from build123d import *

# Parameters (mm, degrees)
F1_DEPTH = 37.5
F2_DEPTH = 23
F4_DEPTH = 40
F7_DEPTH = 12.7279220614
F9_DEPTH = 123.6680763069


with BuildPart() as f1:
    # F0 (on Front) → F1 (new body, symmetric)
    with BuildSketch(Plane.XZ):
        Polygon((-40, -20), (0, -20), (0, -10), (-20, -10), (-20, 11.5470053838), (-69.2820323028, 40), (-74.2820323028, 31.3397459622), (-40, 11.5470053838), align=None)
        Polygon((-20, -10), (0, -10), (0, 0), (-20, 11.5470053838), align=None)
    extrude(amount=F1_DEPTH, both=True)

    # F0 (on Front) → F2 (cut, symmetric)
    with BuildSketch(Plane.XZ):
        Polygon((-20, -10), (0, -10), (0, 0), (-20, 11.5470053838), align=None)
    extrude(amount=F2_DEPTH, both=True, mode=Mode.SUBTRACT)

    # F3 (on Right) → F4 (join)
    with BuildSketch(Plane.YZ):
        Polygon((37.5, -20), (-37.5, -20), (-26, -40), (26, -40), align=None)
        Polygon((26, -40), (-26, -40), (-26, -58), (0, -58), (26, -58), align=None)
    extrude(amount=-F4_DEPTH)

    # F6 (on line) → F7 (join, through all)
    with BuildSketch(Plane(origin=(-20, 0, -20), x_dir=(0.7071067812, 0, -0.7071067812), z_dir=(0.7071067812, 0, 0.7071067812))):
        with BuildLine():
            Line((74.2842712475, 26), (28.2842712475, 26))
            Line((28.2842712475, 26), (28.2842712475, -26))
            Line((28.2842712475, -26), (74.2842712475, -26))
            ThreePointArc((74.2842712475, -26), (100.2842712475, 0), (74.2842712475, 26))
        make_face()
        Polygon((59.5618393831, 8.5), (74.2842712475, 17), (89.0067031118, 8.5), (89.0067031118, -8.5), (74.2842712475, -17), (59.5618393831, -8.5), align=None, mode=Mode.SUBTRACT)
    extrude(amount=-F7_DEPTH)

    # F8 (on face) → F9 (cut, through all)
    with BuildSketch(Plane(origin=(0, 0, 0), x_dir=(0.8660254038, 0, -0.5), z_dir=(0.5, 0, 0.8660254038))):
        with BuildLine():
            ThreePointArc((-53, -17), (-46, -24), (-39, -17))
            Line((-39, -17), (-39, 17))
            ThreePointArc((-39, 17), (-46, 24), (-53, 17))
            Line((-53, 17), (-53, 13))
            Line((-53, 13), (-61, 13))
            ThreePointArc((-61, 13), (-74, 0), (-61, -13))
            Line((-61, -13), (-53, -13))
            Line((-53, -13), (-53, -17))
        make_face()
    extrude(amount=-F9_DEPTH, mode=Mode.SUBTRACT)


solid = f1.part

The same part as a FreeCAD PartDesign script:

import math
import FreeCAD as App
import Part
import Sketcher
Q = App.Units.Quantity


def add_polygon(sketch, points):
    """Adds a closed chain of lines whose ends are joined by coincident constraints."""
    first, n = sketch.GeometryCount, len(points)
    for a, b in zip(points, points[1:] + points[:1]):
        sketch.addGeometry(Part.LineSegment(App.Vector(*a, 0), App.Vector(*b, 0)), False)
    for i in range(n):
        sketch.addConstraint(Sketcher.Constraint("Coincident", first + i, 2, first + (i + 1) % n, 1))

doc = App.newDocument("Part")
params = doc.addObject("Spreadsheet::Sheet", "Params")
for row, (alias, value) in enumerate([
    ("sketch1_width", "40 mm"),
    ("sketch1_height", "20 mm"),
    ("sketch1_length", "80 mm"),
    ("sketch1_length2", "10 mm"),
    ("pad1_length", "75 mm"),
    ("sketch2_width", "20 mm"),
    ("sketch2_height", "10 mm"),
    ("pocket1_length", "46 mm"),
    ("sketch3_width", "75 mm"),
    ("sketch3_width2", "52 mm"),
    ("sketch3_height", "18 mm"),
    ("pad2_length", "40 mm"),
    ("sketch4_radius", "26 mm"),
    ("sketch4_width", "46 mm"),
    ("sketch4_height", "17 mm"),
    ("sketch4_length", "17 mm"),
    ("pad3_length", "12.727922 mm"),
    ("sketch5_radius", "7 mm"),
    ("sketch5_radius2", "13 mm"),
    ("sketch5_width", "8 mm"),
    ("sketch5_height", "34 mm"),
], start=1):
    params.set(f"A{row}", alias)
    params.set(f"B{row}", "=" + value)
    params.setAlias(f"B{row}", alias)

body = doc.addObject("PartDesign::Body", "Body")

sketch1 = body.newObject("Sketcher::SketchObject", "Sketch")
sketch1.AttachmentSupport = (doc.getObject("XZ_Plane"), [""])
sketch1.MapMode = "FlatFace"
add_polygon(sketch1, [(-40, -20), (0, -20), (0, 0), (-69.282032, 40), (-74.282032, 31.339746), (-40, 11.547005)])
sketch1.addConstraint([
    Sketcher.Constraint("Horizontal", 0),
    Sketcher.Constraint("Vertical", 1),
    Sketcher.Constraint("Vertical", 5),
    Sketcher.Constraint("Coincident", 1, 2, -1, 1),
    Sketcher.Constraint("Perpendicular", 2, 3),
    Sketcher.Constraint("Perpendicular", 3, 4),
    Sketcher.Constraint("DistanceX", 0, 1, 0, 2, Q("40 mm")),
    Sketcher.Constraint("DistanceY", 1, 1, 1, 2, Q("20 mm")),
    Sketcher.Constraint("Angle", 2, Q("150 deg")),
    Sketcher.Constraint("Distance", 2, Q("80 mm")),
    Sketcher.Constraint("Distance", 3, Q("10 mm")),
])
sketch1.setExpression("Constraints[12]", "Params.sketch1_width")
sketch1.setExpression("Constraints[13]", "Params.sketch1_height")
sketch1.setExpression("Constraints[15]", "Params.sketch1_length")
sketch1.setExpression("Constraints[16]", "Params.sketch1_length2")
pad1 = body.newObject("PartDesign::Pad", "Pad")
pad1.Profile = sketch1
pad1.setExpression("Length", "Params.pad1_length")
pad1.Midplane = True

sketch2 = body.newObject("Sketcher::SketchObject", "Sketch001")
sketch2.AttachmentSupport = (doc.getObject("XZ_Plane"), [""])
sketch2.MapMode = "FlatFace"
add_polygon(sketch2, [(-20, -10), (0, -10), (0, 0), (-20, 11.547005)])
sketch2.addConstraint([
    Sketcher.Constraint("Horizontal", 0),
    Sketcher.Constraint("Vertical", 1),
    Sketcher.Constraint("Vertical", 3),
    Sketcher.Constraint("Coincident", 1, 2, -1, 1),
    Sketcher.Constraint("DistanceX", 0, 1, 0, 2, Q("20 mm")),
    Sketcher.Constraint("DistanceY", 1, 1, 1, 2, Q("10 mm")),
    Sketcher.Constraint("Angle", 2, Q("150 deg")),
])
sketch2.setExpression("Constraints[8]", "Params.sketch2_width")
sketch2.setExpression("Constraints[9]", "Params.sketch2_height")
pocket1 = body.newObject("PartDesign::Pocket", "Pocket")
pocket1.Profile = sketch2
pocket1.setExpression("Length", "Params.pocket1_length")
pocket1.Midplane = True

sketch3 = body.newObject("Sketcher::SketchObject", "Sketch002")
sketch3.AttachmentSupport = (doc.getObject("YZ_Plane"), [""])
sketch3.MapMode = "FlatFace"
add_polygon(sketch3, [(37.5, -20), (-37.5, -20), (-26, -40), (-26, -58), (26, -58), (26, -40)])
sketch3.addConstraint([
    Sketcher.Constraint("Horizontal", 0),
    Sketcher.Constraint("Vertical", 2),
    Sketcher.Constraint("Horizontal", 3),
    Sketcher.Constraint("Vertical", 4),
    Sketcher.Constraint("Symmetric", 1, 2, 4, 2, -2),
    Sketcher.Constraint("Equal", 1, 5),
    Sketcher.Constraint("DistanceX", 0, 2, 0, 1, Q("75 mm")),
    Sketcher.Constraint("DistanceX", 3, 1, 3, 2, Q("52 mm")),
    Sketcher.Constraint("DistanceY", 2, 2, 2, 1, Q("18 mm")),
    Sketcher.Constraint("DistanceY", 0, 2, -1, 1, Q("20 mm")),
    Sketcher.Constraint("DistanceY", 1, 2, -1, 1, Q("40 mm")),
])
sketch3.setExpression("Constraints[12]", "Params.sketch3_width")
sketch3.setExpression("Constraints[13]", "Params.sketch3_width2")
sketch3.setExpression("Constraints[14]", "Params.sketch3_height")
pad2 = body.newObject("PartDesign::Pad", "Pad001")
pad2.Profile = sketch3
pad2.setExpression("Length", "Params.pad2_length")
pad2.Reversed = True

sketch4 = body.newObject("Sketcher::SketchObject", "Sketch003")
sketch4.Placement = App.Placement(App.Vector(-20, 0, -20), App.Rotation(App.Vector(0.707106781, 0, -0.707106781), App.Vector(0, 0.999999999, 0), App.Vector(0.707106781, 0, 0.707106781), "ZXY"))
sketch4.addGeometry(Part.LineSegment(App.Vector(74.284271, 26, 0), App.Vector(28.284271, 26, 0)), False)
sketch4.addGeometry(Part.LineSegment(App.Vector(28.284271, 26, 0), App.Vector(28.284271, -26, 0)), False)
sketch4.addGeometry(Part.LineSegment(App.Vector(28.284271, -26, 0), App.Vector(74.284271, -26, 0)), False)
sketch4.addGeometry(Part.ArcOfCircle(Part.Circle(App.Vector(74.284271, 0, 0), App.Vector(0, 0, 1), 26), math.radians(-90), math.radians(90)), False)
add_polygon(sketch4, [(59.561839, -8.5), (59.561839, 8.5), (74.284271, 17), (89.006703, 8.5), (89.006703, -8.5), (74.284271, -17)])
sketch4.addConstraint([
    Sketcher.Constraint("Coincident", 0, 2, 1, 1),
    Sketcher.Constraint("Coincident", 1, 2, 2, 1),
    Sketcher.Constraint("Tangent", 2, 2, 3, 1),
    Sketcher.Constraint("Tangent", 3, 2, 0, 1),
    Sketcher.Constraint("Horizontal", 0),
    Sketcher.Constraint("Vertical", 1),
    Sketcher.Constraint("Horizontal", 2),
    Sketcher.Constraint("Vertical", 4),
    Sketcher.Constraint("Vertical", 7),
    Sketcher.Constraint("Symmetric", 5, 2, 8, 2, -1),
    Sketcher.Constraint("PointOnObject", 3, 3, -1),
    Sketcher.Constraint("Parallel", 5, 8),
    Sketcher.Constraint("Parallel", 6, 9),
    Sketcher.Constraint("Horizontal", 4, 2, 6, 2),
    Sketcher.Constraint("Horizontal", 7, 2, 9, 2),
    Sketcher.Constraint("Vertical", 3, 2, 5, 2),
    Sketcher.Constraint("Radius", 3, Q("26 mm")),
    Sketcher.Constraint("DistanceX", 0, 2, 0, 1, Q("46 mm")),
    Sketcher.Constraint("DistanceY", 4, 1, 4, 2, Q("17 mm")),
    Sketcher.Constraint("Angle", 5, Q("30 deg")),
    Sketcher.Constraint("Distance", 5, Q("17 mm")),
    Sketcher.Constraint("DistanceX", -1, 1, 3, 3, Q("74.284271 mm")),
])
sketch4.setExpression("Constraints[22]", "Params.sketch4_radius")
sketch4.setExpression("Constraints[23]", "Params.sketch4_width")
sketch4.setExpression("Constraints[24]", "Params.sketch4_height")
sketch4.setExpression("Constraints[26]", "Params.sketch4_length")
pad3 = body.newObject("PartDesign::Pad", "Pad002")
pad3.Profile = sketch4
pad3.setExpression("Length", "Params.pad3_length")
pad3.Reversed = True

sketch5 = body.newObject("Sketcher::SketchObject", "Sketch004")
sketch5.Placement = App.Placement(App.Vector(0, 0, 0), App.Rotation(App.Vector(0.866025404, 0, -0.5), App.Vector(0, 1, 0), App.Vector(0.5, 0, 0.866025404), "ZXY"))
sketch5.addGeometry([
    Part.ArcOfCircle(Part.Circle(App.Vector(-46, -17, 0), App.Vector(0, 0, 1), 7), math.radians(180), math.radians(360)),
    Part.LineSegment(App.Vector(-39, -17, 0), App.Vector(-39, 17, 0)),
    Part.ArcOfCircle(Part.Circle(App.Vector(-46, 17, 0), App.Vector(0, 0, 1), 7), math.radians(0), math.radians(180)),
    Part.LineSegment(App.Vector(-53, 17, 0), App.Vector(-53, 13, 0)),
    Part.LineSegment(App.Vector(-53, 13, 0), App.Vector(-61, 13, 0)),
    Part.ArcOfCircle(Part.Circle(App.Vector(-61, 0, 0), App.Vector(0, 0, 1), 13), math.radians(90), math.radians(270)),
    Part.LineSegment(App.Vector(-61, -13, 0), App.Vector(-53, -13, 0)),
    Part.LineSegment(App.Vector(-53, -13, 0), App.Vector(-53, -17, 0)),
], False)
sketch5.addConstraint([
    Sketcher.Constraint("Tangent", 0, 2, 1, 1),
    Sketcher.Constraint("Tangent", 1, 2, 2, 1),
    Sketcher.Constraint("Tangent", 2, 2, 3, 1),
    Sketcher.Constraint("Coincident", 3, 2, 4, 1),
    Sketcher.Constraint("Tangent", 4, 2, 5, 1),
    Sketcher.Constraint("Tangent", 5, 2, 6, 1),
    Sketcher.Constraint("Coincident", 6, 2, 7, 1),
    Sketcher.Constraint("Tangent", 7, 2, 0, 1),
    Sketcher.Constraint("Vertical", 1),
    Sketcher.Constraint("Vertical", 3),
    Sketcher.Constraint("Horizontal", 4),
    Sketcher.Constraint("Horizontal", 6),
    Sketcher.Constraint("Vertical", 7),
    Sketcher.Constraint("Equal", 0, 2),
    Sketcher.Constraint("PointOnObject", 5, 3, -1),
    Sketcher.Constraint("Equal", 3, 7),
    Sketcher.Constraint("Radius", 0, Q("7 mm")),
    Sketcher.Constraint("Radius", 5, Q("13 mm")),
    Sketcher.Constraint("DistanceX", 4, 2, 4, 1, Q("8 mm")),
    Sketcher.Constraint("DistanceY", 1, 1, 1, 2, Q("34 mm")),
    Sketcher.Constraint("DistanceX", 0, 3, -1, 1, Q("46 mm")),
])
sketch5.setExpression("Constraints[16]", "Params.sketch5_radius")
sketch5.setExpression("Constraints[17]", "Params.sketch5_radius2")
sketch5.setExpression("Constraints[18]", "Params.sketch5_width")
sketch5.setExpression("Constraints[19]", "Params.sketch5_height")
pocket2 = body.newObject("PartDesign::Pocket", "Pocket001")
pocket2.Profile = sketch5
pocket2.Type = "ThroughAll"

doc.recompute()
